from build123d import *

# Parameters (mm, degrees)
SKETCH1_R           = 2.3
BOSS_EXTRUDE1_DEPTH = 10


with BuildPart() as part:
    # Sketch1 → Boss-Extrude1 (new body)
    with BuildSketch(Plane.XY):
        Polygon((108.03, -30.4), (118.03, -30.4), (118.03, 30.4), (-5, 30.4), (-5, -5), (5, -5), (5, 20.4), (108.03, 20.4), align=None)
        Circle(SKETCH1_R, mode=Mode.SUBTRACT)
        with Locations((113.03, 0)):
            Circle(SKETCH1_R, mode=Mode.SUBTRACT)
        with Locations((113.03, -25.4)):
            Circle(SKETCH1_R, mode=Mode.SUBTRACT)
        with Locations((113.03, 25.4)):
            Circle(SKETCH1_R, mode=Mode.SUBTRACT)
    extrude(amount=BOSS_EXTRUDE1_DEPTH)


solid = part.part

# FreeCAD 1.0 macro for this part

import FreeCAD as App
import Part
import Sketcher


def add_polygon(sketch, points):
    """Adds a closed chain of lines whose ends are joined by coincident constraints."""
    first, n = sketch.GeometryCount, len(points)
    for a, b in zip(points, points[1:] + points[:1]):
        sketch.addGeometry(Part.LineSegment(App.Vector(*a, 0), App.Vector(*b, 0)), False)
    for i in range(n):
        sketch.addConstraint(Sketcher.Constraint("Coincident", first + i, 2, first + (i + 1) % n, 1))

doc = App.newDocument("Part")
body = doc.addObject("PartDesign::Body", "Body")

# Sketch on XY plane
sketch1 = body.newObject("Sketcher::SketchObject", "Sketch")
sketch1.AttachmentSupport = (doc.getObject("XY_Plane"), [""])
sketch1.MapMode = "FlatFace"
add_polygon(sketch1, [(108, -30.4), (118, -30.4), (118, 30.4), (-5, 30.4), (-5, -5), (5, -5), (5, 20.4), (108, 20.4)])  # lines 0-7
sketch1.addGeometry(Part.Circle(App.Vector(113, -25.4, 0), App.Vector(0, 0, 1), 2.3), False)  # 8
sketch1.addGeometry(Part.Circle(App.Vector(0, 0, 0), App.Vector(0, 0, 1), 2.3), False)  # 9
sketch1.addGeometry(Part.Circle(App.Vector(113, 0, 0), App.Vector(0, 0, 1), 2.3), False)  # 10
sketch1.addGeometry(Part.Circle(App.Vector(113, 25.4, 0), App.Vector(0, 0, 1), 2.3), False)  # 11
sketch1.addConstraint([
    Sketcher.Constraint("Horizontal", 0),
    Sketcher.Constraint("Vertical", 1),
    Sketcher.Constraint("Horizontal", 2),
    Sketcher.Constraint("Vertical", 3),
    Sketcher.Constraint("Horizontal", 4),
    Sketcher.Constraint("Vertical", 5),
    Sketcher.Constraint("Horizontal", 6),
    Sketcher.Constraint("Vertical", 7),
    Sketcher.Constraint("Coincident", 9, 3, -1, 1),
    Sketcher.Constraint("Equal", 8, 9),
    Sketcher.Constraint("Equal", 9, 10),
    Sketcher.Constraint("Equal", 10, 11),
    Sketcher.Constraint("Symmetric", 8, 3, 11, 3, -1),
    Sketcher.Constraint("PointOnObject", 10, 3, -1),
    Sketcher.Constraint("Vertical", 8, 3, 10, 3),
    Sketcher.Constraint("Equal", 0, 4),
    Sketcher.Constraint("Diameter", 8, 4.6),
    Sketcher.Constraint("DistanceX", 0, 1, 0, 2, 10.0),
    Sketcher.Constraint("DistanceY", 1, 1, 1, 2, 60.8),
    Sketcher.Constraint("DistanceY", 3, 2, 3, 1, 35.4),
    Sketcher.Constraint("DistanceY", 5, 1, 5, 2, 25.4),
    Sketcher.Constraint("DistanceX", 2, 2, -1, 1, 5.0),
    Sketcher.Constraint("DistanceY", 3, 2, -1, 1, 5.0),
    Sketcher.Constraint("DistanceX", 8, 3, 0, 2, 5.0),
    Sketcher.Constraint("DistanceY", 0, 2, 8, 3, 5.0),
    Sketcher.Constraint("DistanceX", 2, 2, 2, 1, 123.03),
])
pad1 = body.newObject("PartDesign::Pad", "Pad")
pad1.Profile = sketch1
pad1.Length = 10

doc.recompute()
